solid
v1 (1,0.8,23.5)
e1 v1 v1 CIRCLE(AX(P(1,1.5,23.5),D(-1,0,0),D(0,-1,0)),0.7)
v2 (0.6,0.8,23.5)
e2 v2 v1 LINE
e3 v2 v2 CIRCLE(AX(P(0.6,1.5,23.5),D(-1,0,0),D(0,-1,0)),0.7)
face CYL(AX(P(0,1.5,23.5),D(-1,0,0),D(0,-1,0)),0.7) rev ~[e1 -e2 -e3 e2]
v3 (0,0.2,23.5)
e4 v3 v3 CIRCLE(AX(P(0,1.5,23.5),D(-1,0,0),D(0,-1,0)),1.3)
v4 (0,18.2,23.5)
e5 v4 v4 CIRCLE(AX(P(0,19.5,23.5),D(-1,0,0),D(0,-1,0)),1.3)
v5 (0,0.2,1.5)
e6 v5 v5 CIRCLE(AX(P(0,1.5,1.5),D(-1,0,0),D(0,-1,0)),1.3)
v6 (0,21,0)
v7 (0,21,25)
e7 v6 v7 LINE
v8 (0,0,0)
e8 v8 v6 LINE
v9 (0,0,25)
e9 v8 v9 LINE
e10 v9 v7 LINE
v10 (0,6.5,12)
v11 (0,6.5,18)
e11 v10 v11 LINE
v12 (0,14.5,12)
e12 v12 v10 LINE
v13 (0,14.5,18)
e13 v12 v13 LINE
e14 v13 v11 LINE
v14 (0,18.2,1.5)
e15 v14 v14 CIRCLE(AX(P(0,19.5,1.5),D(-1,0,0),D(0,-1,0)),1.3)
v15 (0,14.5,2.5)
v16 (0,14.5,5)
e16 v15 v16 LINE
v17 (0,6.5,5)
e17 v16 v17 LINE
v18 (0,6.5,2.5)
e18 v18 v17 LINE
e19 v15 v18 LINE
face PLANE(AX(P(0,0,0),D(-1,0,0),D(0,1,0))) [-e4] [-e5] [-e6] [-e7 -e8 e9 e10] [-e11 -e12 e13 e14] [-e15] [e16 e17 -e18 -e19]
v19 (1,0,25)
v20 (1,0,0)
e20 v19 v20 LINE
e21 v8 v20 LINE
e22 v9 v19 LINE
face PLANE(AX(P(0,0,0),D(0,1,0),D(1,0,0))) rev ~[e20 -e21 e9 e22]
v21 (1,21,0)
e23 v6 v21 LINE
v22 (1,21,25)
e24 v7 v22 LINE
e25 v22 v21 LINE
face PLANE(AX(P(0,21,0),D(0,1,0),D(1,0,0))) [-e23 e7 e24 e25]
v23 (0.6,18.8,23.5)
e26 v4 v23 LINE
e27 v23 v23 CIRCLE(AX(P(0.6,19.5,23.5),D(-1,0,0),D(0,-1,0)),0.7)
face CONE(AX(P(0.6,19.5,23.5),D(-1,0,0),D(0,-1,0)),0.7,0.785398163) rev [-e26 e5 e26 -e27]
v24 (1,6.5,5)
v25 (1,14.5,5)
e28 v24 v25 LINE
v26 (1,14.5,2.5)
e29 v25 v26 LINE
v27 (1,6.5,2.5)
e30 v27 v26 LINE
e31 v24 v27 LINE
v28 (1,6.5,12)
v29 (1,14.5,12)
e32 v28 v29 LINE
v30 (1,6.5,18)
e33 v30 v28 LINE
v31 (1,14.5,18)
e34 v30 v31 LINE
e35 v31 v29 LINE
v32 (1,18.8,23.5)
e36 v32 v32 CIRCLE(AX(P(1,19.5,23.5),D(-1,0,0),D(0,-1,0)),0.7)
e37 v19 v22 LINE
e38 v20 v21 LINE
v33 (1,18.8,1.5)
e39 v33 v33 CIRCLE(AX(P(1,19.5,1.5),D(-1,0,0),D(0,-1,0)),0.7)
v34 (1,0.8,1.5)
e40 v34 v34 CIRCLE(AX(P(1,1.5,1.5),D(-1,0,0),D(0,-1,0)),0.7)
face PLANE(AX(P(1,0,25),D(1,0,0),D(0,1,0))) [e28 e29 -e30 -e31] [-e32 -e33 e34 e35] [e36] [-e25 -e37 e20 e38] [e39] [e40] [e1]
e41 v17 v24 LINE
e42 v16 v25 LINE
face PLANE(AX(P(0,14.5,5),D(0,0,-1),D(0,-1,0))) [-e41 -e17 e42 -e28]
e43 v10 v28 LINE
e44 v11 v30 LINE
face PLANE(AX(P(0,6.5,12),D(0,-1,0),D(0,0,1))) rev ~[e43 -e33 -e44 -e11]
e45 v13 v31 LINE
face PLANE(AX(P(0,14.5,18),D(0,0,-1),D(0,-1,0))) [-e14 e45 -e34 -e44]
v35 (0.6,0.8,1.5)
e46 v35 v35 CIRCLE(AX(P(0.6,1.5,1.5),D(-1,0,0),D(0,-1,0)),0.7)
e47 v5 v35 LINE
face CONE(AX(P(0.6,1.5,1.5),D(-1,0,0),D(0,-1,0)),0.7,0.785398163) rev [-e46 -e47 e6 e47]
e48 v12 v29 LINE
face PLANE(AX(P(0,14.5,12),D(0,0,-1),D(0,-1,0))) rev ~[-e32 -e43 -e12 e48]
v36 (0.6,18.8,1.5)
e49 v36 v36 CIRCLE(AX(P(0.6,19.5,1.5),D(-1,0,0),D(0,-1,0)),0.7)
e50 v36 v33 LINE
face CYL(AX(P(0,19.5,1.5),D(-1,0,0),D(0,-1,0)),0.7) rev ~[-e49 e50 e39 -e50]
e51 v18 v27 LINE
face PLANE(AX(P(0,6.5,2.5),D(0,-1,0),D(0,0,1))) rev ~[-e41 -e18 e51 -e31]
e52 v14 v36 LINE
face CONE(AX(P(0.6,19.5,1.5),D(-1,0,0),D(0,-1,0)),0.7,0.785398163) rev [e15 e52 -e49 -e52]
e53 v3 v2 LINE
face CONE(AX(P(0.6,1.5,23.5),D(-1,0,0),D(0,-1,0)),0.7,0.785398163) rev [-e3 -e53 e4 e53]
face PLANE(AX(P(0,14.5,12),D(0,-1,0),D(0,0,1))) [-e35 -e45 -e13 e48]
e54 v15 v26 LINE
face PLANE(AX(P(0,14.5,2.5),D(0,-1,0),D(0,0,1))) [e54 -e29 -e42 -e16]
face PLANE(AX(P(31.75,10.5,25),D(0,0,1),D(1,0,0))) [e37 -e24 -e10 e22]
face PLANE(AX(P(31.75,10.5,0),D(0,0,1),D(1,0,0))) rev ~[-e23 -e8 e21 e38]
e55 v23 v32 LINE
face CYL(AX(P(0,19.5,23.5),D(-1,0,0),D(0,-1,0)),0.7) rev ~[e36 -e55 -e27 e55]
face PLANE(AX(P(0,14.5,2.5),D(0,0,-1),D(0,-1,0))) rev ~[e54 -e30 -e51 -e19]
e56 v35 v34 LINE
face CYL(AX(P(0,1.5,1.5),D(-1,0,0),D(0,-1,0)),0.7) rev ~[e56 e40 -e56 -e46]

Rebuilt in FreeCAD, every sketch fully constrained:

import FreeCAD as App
import Part
import Sketcher


def edges_at(feature, points):
    """Names of the edges that pass closest to the given points."""
    edges = feature.Shape.Edges
    near = lambda p: min(range(len(edges)), key=lambda i: edges[i].distToShape(Part.Vertex(*p))[0])
    return sorted({f"Edge{near(p) + 1}" for p in points})

doc = App.newDocument("Part")
params = doc.addObject("Spreadsheet::Sheet", "Params")
for row, (alias, value) in enumerate([
    ("sketch1_height", "21 mm"),
    ("sketch1_width", "63.5 mm"),
    ("pad1_length", "25 mm"),
    ("sketch2_width", "63 mm"),
    ("sketch2_height", "21 mm"),
    ("pocket1_length", "25 mm"),
    ("sketch3_width", "8 mm"),
    ("sketch3_height", "6 mm"),
    ("sketch3_height2", "2.5 mm"),
    ("pocket2_length", "5 mm"),
    ("sketch4_diameter", "1.4 mm"),
    ("pocket3_length", "5 mm"),
    ("chamfer_size", "0.6 mm"),
], start=1):
    params.set(f"A{row}", alias)
    params.set(f"B{row}", "=" + value)
    params.setAlias(f"B{row}", alias)

body = doc.addObject("PartDesign::Body", "Body")

sketch1 = body.newObject("Sketcher::SketchObject", "Sketch")
sketch1.AttachmentSupport = (doc.getObject("XY_Plane"), [""])
sketch1.MapMode = "FlatFace"
sketch1.addGeometry(Part.LineSegment(App.Vector(0, 21, 0), App.Vector(0, 0, 0)), False)
sketch1.addGeometry(Part.LineSegment(App.Vector(0, 0, 0), App.Vector(64, 0, 0)), False)
sketch1.addGeometry(Part.LineSegment(App.Vector(64, 0, 0), App.Vector(64, 21, 0)), False)
sketch1.addGeometry(Part.LineSegment(App.Vector(64, 21, 0), App.Vector(0, 21, 0)), False)
sketch1.addConstraint(Sketcher.Constraint("Coincident", 0, 2, 1, 1))
sketch1.addConstraint(Sketcher.Constraint("Coincident", 1, 2, 2, 1))
sketch1.addConstraint(Sketcher.Constraint("Coincident", 2, 2, 3, 1))
sketch1.addConstraint(Sketcher.Constraint("Coincident", 3, 2, 0, 1))
sketch1.addConstraint(Sketcher.Constraint("Vertical", 0))
sketch1.addConstraint(Sketcher.Constraint("Horizontal", 1))
sketch1.addConstraint(Sketcher.Constraint("Vertical", 2))
sketch1.addConstraint(Sketcher.Constraint("Horizontal", 3))
sketch1.addConstraint(Sketcher.Constraint("Coincident", 0, 2, -1, 1))
sketch1.addConstraint(Sketcher.Constraint("DistanceY", 0, 2, 0, 1, 21.0))
sketch1.addConstraint(Sketcher.Constraint("DistanceX", 1, 1, 1, 2, 63.5))
sketch1.setExpression("Constraints[9]", "Params.sketch1_height")
sketch1.setExpression("Constraints[10]", "Params.sketch1_width")
pad1 = body.newObject("PartDesign::Pad", "Pad")
pad1.Profile = sketch1
pad1.setExpression("Length", "Params.pad1_length")

sketch2 = body.newObject("Sketcher::SketchObject", "Sketch001")
sketch2.AttachmentSupport = (doc.getObject("XY_Plane"), [""])
sketch2.MapMode = "FlatFace"
sketch2.AttachmentOffset = App.Placement(App.Vector(0, 0, 25), App.Rotation())
sketch2.addGeometry(Part.LineSegment(App.Vector(1, 21, 0), App.Vector(1, 0, 0)), False)
sketch2.addGeometry(Part.LineSegment(App.Vector(1, 0, 0), App.Vector(64, 0, 0)), False)
sketch2.addGeometry(Part.LineSegment(App.Vector(64, 0, 0), App.Vector(64, 21, 0)), False)
sketch2.addGeometry(Part.LineSegment(App.Vector(64, 21, 0), App.Vector(1, 21, 0)), False)
sketch2.addConstraint(Sketcher.Constraint("Coincident", 0, 2, 1, 1))
sketch2.addConstraint(Sketcher.Constraint("Coincident", 1, 2, 2, 1))
sketch2.addConstraint(Sketcher.Constraint("Coincident", 2, 2, 3, 1))
sketch2.addConstraint(Sketcher.Constraint("Coincident", 3, 2, 0, 1))
sketch2.addConstraint(Sketcher.Constraint("Vertical", 0))
sketch2.addConstraint(Sketcher.Constraint("Horizontal", 1))
sketch2.addConstraint(Sketcher.Constraint("Vertical", 2))
sketch2.addConstraint(Sketcher.Constraint("Horizontal", 3))
sketch2.addConstraint(Sketcher.Constraint("PointOnObject", 0, 2, -1))
sketch2.addConstraint(Sketcher.Constraint("DistanceX", 1, 1, 1, 2, 63.0))
sketch2.addConstraint(Sketcher.Constraint("DistanceY", 0, 2, 0, 1, 21.0))
sketch2.addConstraint(Sketcher.Constraint("DistanceX", -1, 1, 0, 2, 1.0))
sketch2.setExpression("Constraints[9]", "Params.sketch2_width")
sketch2.setExpression("Constraints[10]", "Params.sketch2_height")
pocket1 = body.newObject("PartDesign::Pocket", "Pocket")
pocket1.Profile = sketch2
pocket1.setExpression("Length", "Params.pocket1_length")

sketch3 = body.newObject("Sketcher::SketchObject", "Sketch002")
sketch3.AttachmentSupport = (doc.getObject("YZ_Plane"), [""])
sketch3.MapMode = "FlatFace"
sketch3.addGeometry(Part.LineSegment(App.Vector(14.5, 18, 0), App.Vector(14.5, 12, 0)), False)
sketch3.addGeometry(Part.LineSegment(App.Vector(14.5, 12, 0), App.Vector(6.5, 12, 0)), False)
sketch3.addGeometry(Part.LineSegment(App.Vector(6.5, 12, 0), App.Vector(6.5, 18, 0)), False)
sketch3.addGeometry(Part.LineSegment(App.Vector(6.5, 18, 0), App.Vector(14.5, 18, 0)), False)
sketch3.addGeometry(Part.LineSegment(App.Vector(14.5, 5, 0), App.Vector(14.5, 2.5, 0)), False)
sketch3.addGeometry(Part.LineSegment(App.Vector(14.5, 2.5, 0), App.Vector(6.5, 2.5, 0)), False)
sketch3.addGeometry(Part.LineSegment(App.Vector(6.5, 2.5, 0), App.Vector(6.5, 5, 0)), False)
sketch3.addGeometry(Part.LineSegment(App.Vector(6.5, 5, 0), App.Vector(14.5, 5, 0)), False)
sketch3.addConstraint(Sketcher.Constraint("Coincident", 0, 2, 1, 1))
sketch3.addConstraint(Sketcher.Constraint("Coincident", 1, 2, 2, 1))
sketch3.addConstraint(Sketcher.Constraint("Coincident", 2, 2, 3, 1))
sketch3.addConstraint(Sketcher.Constraint("Coincident", 3, 2, 0, 1))
sketch3.addConstraint(Sketcher.Constraint("Coincident", 4, 2, 5, 1))
sketch3.addConstraint(Sketcher.Constraint("Coincident", 5, 2, 6, 1))
sketch3.addConstraint(Sketcher.Constraint("Coincident", 6, 2, 7, 1))
sketch3.addConstraint(Sketcher.Constraint("Coincident", 7, 2, 4, 1))
sketch3.addConstraint(Sketcher.Constraint("Vertical", 0))
sketch3.addConstraint(Sketcher.Constraint("Horizontal", 1))
sketch3.addConstraint(Sketcher.Constraint("Vertical", 2))
sketch3.addConstraint(Sketcher.Constraint("Horizontal", 3))
sketch3.addConstraint(Sketcher.Constraint("Vertical", 4))
sketch3.addConstraint(Sketcher.Constraint("Horizontal", 5))
sketch3.addConstraint(Sketcher.Constraint("Vertical", 6))
sketch3.addConstraint(Sketcher.Constraint("Horizontal", 7))
sketch3.addConstraint(Sketcher.Constraint("Vertical", 3, 2, 4, 2))
sketch3.addConstraint(Sketcher.Constraint("Vertical", 2, 2, 5, 2))
sketch3.addConstraint(Sketcher.Constraint("DistanceX", 1, 2, 1, 1, 8.0))
sketch3.addConstraint(Sketcher.Constraint("DistanceY", 0, 2, 0, 1, 6.0))
sketch3.addConstraint(Sketcher.Constraint("DistanceY", 4, 2, 4, 1, 2.5))
sketch3.addConstraint(Sketcher.Constraint("DistanceY", -1, 1, 0, 2, 12.0))
sketch3.addConstraint(Sketcher.Constraint("DistanceY", -1, 1, 6, 2, 5.0))
sketch3.addConstraint(Sketcher.Constraint("DistanceX", -1, 1, 0, 2, 14.5))
sketch3.setExpression("Constraints[18]", "Params.sketch3_width")
sketch3.setExpression("Constraints[19]", "Params.sketch3_height")
sketch3.setExpression("Constraints[20]", "Params.sketch3_height2")
pocket2 = body.newObject("PartDesign::Pocket", "Pocket001")
pocket2.Profile = sketch3
pocket2.setExpression("Length", "Params.pocket2_length")
pocket2.Reversed = True

sketch4 = body.newObject("Sketcher::SketchObject", "Sketch003")
sketch4.AttachmentSupport = (doc.getObject("YZ_Plane"), [""])
sketch4.MapMode = "FlatFace"
sketch4.addGeometry(Part.Circle(App.Vector(19.5, 1.5, 0), App.Vector(0, 0, 1), 0.7), False)
sketch4.addGeometry(Part.Circle(App.Vector(1.5, 1.5, 0), App.Vector(0, 0, 1), 0.7), False)
sketch4.addGeometry(Part.Circle(App.Vector(1.5, 23.5, 0), App.Vector(0, 0, 1), 0.7), False)
sketch4.addGeometry(Part.Circle(App.Vector(19.5, 23.5, 0), App.Vector(0, 0, 1), 0.7), False)
sketch4.addConstraint(Sketcher.Constraint("Equal", 0, 1))
sketch4.addConstraint(Sketcher.Constraint("Equal", 1, 2))
sketch4.addConstraint(Sketcher.Constraint("Equal", 2, 3))
sketch4.addConstraint(Sketcher.Constraint("Horizontal", 0, 3, 1, 3))
sketch4.addConstraint(Sketcher.Constraint("Horizontal", 2, 3, 3, 3))
sketch4.addConstraint(Sketcher.Constraint("Vertical", 1, 3, 2, 3))
sketch4.addConstraint(Sketcher.Constraint("Vertical", 0, 3, 3, 3))
sketch4.addConstraint(Sketcher.Constraint("Diameter", 0, 1.4))
sketch4.addConstraint(Sketcher.Constraint("DistanceX", 1, 3, 0, 3, 18.0))
sketch4.addConstraint(Sketcher.Constraint("DistanceY", 1, 3, 2, 3, 22.0))
sketch4.addConstraint(Sketcher.Constraint("DistanceX", -1, 1, 0, 3, 19.5))
sketch4.addConstraint(Sketcher.Constraint("DistanceY", -1, 1, 0, 3, 1.5))
sketch4.setExpression("Constraints[7]", "Params.sketch4_diameter")
pocket3 = body.newObject("PartDesign::Pocket", "Pocket002")
pocket3.Profile = sketch4
pocket3.setExpression("Length", "Params.pocket3_length")
pocket3.Reversed = True
doc.recompute()

chamfer = body.newObject("PartDesign::Chamfer", "Chamfer")
chamfer.Base = (pocket3, edges_at(pocket3, [
    (0, 2.2, 1.5),
    (0, 20.2, 1.5),
    (0, 20.2, 23.5),
    (0, 2.2, 23.5),
]))
chamfer.setExpression("Size", "Params.chamfer_size")

doc.recompute()
